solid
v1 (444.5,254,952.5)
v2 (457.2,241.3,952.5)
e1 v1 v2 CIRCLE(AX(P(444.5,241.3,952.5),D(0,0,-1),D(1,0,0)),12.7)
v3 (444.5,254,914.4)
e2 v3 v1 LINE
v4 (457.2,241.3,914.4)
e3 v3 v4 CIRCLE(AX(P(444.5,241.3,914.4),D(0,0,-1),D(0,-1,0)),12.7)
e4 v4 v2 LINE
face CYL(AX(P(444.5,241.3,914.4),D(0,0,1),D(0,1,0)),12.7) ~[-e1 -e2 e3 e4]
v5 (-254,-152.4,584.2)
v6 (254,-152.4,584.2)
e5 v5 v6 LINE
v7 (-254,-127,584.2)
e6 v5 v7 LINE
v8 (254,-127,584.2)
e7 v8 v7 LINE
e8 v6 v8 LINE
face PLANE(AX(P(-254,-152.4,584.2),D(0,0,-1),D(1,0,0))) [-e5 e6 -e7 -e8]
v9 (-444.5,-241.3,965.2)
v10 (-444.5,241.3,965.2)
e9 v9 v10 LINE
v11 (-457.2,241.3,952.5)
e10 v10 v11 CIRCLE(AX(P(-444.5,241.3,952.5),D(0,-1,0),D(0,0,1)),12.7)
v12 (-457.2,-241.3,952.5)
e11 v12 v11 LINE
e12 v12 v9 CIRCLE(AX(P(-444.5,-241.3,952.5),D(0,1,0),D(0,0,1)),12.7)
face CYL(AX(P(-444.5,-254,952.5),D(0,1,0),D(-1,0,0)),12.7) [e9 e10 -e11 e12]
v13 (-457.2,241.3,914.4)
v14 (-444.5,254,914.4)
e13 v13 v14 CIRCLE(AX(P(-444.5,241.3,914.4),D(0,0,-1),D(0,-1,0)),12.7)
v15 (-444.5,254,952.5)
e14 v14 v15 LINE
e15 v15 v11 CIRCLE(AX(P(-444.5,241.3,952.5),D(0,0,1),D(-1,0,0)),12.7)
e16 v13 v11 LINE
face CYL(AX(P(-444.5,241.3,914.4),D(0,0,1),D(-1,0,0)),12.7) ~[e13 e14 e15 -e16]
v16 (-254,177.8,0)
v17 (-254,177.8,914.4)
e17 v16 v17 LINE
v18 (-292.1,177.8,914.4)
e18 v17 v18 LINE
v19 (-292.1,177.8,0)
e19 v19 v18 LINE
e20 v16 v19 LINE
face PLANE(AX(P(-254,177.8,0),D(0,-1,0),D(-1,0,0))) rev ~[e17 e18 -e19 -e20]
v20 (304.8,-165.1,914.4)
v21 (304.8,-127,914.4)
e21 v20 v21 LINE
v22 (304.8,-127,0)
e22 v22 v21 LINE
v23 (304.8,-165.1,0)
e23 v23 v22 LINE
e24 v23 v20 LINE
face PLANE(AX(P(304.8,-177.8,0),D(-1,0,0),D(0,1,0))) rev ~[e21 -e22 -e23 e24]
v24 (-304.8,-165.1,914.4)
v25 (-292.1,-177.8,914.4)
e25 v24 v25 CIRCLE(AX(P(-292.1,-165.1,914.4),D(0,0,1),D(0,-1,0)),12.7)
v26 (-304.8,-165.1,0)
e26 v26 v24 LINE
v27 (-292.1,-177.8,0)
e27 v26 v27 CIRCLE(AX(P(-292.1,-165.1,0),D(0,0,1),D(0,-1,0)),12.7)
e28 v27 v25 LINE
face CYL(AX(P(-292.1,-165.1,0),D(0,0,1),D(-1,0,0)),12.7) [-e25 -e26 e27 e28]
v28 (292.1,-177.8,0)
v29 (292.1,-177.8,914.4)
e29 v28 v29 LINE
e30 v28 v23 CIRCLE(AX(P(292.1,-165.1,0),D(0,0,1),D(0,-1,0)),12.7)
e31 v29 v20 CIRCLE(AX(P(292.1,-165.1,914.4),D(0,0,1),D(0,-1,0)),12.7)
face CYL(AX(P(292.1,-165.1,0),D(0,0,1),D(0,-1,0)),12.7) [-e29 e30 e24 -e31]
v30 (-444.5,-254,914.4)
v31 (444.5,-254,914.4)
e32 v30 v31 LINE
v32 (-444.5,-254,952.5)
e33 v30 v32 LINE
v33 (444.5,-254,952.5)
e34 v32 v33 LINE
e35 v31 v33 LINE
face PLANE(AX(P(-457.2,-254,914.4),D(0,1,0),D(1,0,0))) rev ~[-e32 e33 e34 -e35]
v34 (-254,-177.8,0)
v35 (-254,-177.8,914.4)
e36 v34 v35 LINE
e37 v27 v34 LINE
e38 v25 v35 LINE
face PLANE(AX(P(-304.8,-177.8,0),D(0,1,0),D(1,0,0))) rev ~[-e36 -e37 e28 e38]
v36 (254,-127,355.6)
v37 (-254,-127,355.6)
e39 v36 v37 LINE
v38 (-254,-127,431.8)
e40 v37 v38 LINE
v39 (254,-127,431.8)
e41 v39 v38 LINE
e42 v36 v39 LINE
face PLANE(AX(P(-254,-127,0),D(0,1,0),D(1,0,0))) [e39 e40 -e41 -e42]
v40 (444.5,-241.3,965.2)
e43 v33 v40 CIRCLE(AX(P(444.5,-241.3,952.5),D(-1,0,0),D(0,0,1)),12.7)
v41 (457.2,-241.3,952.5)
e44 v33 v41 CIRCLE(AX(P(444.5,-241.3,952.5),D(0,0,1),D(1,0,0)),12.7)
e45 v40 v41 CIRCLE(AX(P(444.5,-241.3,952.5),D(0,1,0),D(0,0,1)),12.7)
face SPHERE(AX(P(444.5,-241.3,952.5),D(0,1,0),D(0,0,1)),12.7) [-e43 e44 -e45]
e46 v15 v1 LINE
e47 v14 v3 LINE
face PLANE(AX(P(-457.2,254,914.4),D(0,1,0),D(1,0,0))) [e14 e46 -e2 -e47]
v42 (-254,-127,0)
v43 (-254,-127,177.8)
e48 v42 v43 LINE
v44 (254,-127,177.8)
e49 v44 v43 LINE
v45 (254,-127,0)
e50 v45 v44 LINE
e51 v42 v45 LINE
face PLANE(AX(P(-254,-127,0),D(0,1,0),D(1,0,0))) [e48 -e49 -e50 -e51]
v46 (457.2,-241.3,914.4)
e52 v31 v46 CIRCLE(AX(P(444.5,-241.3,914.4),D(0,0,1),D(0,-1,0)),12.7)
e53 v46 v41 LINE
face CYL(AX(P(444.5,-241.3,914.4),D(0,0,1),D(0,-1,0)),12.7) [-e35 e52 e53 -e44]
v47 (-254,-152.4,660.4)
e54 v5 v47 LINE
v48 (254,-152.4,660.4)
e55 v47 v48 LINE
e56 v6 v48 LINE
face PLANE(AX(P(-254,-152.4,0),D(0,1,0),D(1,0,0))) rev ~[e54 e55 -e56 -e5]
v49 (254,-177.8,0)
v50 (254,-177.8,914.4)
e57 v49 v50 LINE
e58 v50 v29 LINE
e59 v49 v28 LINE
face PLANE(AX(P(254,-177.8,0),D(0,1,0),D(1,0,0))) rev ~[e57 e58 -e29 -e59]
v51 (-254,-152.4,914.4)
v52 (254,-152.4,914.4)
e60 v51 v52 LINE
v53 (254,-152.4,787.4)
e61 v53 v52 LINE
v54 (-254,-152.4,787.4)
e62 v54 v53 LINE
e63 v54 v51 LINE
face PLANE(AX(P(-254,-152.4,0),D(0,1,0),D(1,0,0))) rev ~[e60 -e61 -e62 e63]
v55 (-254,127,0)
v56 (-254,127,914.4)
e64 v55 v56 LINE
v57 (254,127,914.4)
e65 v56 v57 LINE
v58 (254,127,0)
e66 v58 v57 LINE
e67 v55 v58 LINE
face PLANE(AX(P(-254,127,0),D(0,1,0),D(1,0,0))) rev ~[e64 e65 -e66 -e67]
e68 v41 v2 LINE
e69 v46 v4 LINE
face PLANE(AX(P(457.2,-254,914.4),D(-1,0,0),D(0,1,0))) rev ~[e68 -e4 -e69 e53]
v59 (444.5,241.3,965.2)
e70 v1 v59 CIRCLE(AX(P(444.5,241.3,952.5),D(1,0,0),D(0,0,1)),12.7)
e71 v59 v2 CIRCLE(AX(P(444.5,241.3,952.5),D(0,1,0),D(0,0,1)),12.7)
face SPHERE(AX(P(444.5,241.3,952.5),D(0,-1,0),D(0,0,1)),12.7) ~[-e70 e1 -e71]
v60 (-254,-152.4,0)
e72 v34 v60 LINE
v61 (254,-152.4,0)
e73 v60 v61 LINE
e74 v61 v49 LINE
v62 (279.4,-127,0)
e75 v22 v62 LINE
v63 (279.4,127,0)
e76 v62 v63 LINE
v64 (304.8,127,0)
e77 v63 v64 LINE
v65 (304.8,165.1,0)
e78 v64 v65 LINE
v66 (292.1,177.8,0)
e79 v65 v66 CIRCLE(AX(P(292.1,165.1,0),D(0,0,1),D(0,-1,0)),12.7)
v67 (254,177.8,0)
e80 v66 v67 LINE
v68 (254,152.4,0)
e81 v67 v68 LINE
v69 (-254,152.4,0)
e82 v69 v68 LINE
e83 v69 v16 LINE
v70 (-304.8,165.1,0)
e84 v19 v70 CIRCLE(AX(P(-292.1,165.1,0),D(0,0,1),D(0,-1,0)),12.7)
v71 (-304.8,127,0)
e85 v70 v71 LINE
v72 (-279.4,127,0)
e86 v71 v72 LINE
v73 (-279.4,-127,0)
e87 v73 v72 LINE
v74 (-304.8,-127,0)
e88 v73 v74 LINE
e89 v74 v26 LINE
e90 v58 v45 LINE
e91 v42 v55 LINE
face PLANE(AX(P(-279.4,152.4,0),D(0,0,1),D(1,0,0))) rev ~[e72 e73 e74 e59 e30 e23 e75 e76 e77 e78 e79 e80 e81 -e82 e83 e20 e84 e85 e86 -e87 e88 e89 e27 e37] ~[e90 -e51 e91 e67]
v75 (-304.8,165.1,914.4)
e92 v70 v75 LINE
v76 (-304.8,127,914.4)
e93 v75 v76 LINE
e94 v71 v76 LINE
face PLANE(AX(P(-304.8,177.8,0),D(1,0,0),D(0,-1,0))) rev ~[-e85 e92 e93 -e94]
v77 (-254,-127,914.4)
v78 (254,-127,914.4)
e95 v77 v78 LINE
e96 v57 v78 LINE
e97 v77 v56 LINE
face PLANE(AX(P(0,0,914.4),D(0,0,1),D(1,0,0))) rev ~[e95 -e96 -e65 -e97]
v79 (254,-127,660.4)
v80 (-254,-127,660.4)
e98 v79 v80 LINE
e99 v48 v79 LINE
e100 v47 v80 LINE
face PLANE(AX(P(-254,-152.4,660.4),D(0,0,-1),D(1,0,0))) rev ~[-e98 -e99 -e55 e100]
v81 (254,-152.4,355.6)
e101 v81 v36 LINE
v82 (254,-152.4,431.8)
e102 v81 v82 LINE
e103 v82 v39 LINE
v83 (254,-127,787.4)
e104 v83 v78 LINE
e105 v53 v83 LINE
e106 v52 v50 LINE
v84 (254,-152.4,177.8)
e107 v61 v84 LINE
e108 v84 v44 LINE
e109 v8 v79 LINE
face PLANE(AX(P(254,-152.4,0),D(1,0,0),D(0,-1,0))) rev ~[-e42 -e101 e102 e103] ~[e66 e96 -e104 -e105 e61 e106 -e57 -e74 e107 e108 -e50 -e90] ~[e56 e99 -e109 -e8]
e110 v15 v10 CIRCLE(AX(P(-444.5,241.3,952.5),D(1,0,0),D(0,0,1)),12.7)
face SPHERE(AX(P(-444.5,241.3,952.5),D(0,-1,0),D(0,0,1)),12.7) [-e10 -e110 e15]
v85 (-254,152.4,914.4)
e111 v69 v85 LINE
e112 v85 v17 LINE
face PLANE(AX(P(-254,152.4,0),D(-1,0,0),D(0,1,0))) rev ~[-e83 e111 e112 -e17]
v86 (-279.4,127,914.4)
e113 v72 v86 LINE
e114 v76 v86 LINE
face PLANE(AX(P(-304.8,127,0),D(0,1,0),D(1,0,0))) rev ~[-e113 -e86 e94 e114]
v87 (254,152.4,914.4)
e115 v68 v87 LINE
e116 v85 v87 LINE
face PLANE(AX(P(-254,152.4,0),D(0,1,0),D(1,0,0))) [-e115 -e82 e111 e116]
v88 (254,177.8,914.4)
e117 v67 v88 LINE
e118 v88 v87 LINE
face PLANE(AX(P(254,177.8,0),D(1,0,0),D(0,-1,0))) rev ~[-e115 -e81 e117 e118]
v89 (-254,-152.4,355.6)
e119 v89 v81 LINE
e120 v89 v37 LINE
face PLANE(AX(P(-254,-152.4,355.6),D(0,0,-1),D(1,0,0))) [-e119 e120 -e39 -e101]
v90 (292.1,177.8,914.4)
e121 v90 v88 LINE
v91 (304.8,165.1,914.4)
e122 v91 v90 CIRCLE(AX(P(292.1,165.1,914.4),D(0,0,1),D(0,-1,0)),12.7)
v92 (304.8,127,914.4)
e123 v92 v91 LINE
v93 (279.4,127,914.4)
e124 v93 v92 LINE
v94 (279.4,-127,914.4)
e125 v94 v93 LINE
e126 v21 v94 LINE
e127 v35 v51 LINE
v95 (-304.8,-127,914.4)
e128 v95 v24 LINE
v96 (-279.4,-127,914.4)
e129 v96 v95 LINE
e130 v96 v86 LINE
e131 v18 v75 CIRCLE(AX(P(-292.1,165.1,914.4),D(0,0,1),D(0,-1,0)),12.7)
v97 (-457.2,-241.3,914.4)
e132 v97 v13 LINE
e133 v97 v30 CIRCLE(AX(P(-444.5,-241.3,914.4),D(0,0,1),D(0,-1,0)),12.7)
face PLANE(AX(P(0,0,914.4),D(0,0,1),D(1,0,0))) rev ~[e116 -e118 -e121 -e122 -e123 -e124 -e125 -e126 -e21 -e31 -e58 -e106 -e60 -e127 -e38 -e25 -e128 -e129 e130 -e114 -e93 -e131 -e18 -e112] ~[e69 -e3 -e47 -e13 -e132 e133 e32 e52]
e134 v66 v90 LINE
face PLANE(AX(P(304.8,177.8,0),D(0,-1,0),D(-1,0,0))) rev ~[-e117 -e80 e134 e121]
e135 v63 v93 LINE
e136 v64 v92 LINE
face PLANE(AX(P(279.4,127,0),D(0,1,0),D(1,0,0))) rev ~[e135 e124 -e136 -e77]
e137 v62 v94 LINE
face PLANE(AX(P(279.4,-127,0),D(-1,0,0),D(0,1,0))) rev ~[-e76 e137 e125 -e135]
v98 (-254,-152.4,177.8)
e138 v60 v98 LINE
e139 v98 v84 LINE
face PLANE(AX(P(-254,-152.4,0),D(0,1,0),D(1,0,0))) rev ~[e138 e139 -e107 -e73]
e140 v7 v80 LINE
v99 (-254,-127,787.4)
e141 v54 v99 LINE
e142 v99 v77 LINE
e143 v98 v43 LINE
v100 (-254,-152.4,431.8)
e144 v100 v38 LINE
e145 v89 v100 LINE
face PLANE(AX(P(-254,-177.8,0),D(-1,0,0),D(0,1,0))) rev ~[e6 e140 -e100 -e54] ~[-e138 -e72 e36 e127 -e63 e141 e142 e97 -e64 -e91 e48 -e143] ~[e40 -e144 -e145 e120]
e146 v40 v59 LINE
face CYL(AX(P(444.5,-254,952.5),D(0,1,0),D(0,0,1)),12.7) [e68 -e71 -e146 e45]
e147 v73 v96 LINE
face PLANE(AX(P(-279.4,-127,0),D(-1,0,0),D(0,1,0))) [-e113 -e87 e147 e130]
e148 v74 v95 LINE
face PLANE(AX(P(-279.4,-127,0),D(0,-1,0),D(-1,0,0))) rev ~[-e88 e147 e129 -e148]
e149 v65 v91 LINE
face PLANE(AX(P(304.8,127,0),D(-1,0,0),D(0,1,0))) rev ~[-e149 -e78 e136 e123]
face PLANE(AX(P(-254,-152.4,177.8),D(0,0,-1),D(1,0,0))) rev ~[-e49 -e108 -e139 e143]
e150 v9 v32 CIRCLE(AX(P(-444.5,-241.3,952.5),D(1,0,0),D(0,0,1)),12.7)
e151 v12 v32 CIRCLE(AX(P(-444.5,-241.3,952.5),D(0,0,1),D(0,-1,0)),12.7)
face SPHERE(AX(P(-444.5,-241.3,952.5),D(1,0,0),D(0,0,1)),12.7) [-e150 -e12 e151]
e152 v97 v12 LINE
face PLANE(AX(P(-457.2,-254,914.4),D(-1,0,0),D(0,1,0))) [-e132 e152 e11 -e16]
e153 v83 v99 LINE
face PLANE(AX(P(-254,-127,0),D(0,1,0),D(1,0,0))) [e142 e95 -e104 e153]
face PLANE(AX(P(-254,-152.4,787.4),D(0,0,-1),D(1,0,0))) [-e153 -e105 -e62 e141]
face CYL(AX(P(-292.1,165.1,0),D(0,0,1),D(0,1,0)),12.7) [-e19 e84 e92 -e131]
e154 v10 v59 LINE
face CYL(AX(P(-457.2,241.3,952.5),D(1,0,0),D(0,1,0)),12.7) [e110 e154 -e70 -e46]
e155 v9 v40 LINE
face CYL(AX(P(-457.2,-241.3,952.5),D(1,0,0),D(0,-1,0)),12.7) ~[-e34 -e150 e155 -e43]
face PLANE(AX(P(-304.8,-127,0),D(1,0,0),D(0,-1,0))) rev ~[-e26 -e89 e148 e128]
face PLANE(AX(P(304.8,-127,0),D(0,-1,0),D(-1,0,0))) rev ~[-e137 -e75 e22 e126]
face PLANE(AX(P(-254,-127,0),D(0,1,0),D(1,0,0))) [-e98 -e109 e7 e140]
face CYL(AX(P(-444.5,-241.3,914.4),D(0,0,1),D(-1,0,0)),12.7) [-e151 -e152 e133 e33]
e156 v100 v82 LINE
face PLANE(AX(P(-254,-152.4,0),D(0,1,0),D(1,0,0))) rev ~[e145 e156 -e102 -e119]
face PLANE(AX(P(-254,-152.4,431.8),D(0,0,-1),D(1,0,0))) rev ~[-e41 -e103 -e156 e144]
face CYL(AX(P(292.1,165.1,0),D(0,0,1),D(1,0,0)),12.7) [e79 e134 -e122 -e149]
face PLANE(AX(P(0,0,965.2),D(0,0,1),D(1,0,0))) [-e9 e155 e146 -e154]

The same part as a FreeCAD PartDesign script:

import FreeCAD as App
import Part
import Sketcher
from FreeCAD import Vector
Q = App.Units.Quantity


def edges_at(feature, points):
    """Names of the edges that pass closest to the given points."""
    edges = feature.Shape.Edges
    near = lambda p: min(range(len(edges)), key=lambda i: edges[i].distToShape(Part.Vertex(*p))[0])
    return sorted({f"Edge{near(p) + 1}" for p in points})


def add_polygon(sketch, points):
    """Adds a closed chain of lines whose ends are joined by coincident constraints."""
    first, n = sketch.GeometryCount, len(points)
    for a, b in zip(points, points[1:] + points[:1]):
        sketch.addGeometry(Part.LineSegment(App.Vector(*a, 0), App.Vector(*b, 0)), False)
    for i in range(n):
        sketch.addConstraint(Sketcher.Constraint("Coincident", first + i, 2, first + (i + 1) % n, 1))

doc = App.newDocument("Part")
params = doc.addObject("Spreadsheet::Sheet", "Params")
for row, (alias, value) in enumerate([
    ("sketch1_width", "2 in"),
    ("sketch1_width2", "1 in"),
    ("sketch1_width3", "20 in"),
    ("sketch1_height", "10 in"),
    ("pad1_length", "36 in"),
    ("sketch2_width", "36 in"),
    ("sketch2_height", "20 in"),
    ("pad2_length", "2 in"),
    ("sketch3_width", "20 in"),
    ("sketch3_height", "5 in"),
    ("sketch3_height2", "6 in"),
    ("sketch3_height3", "7 in"),
    ("pocket1_length", "5 in"),
    ("fillet_radius", "0.5 in"),
], start=1):
    params.set(f"A{row}", alias)
    params.set(f"B{row}", "=" + value)
    params.setAlias(f"B{row}", alias)

body = doc.addObject("PartDesign::Body", "Body")

# Sketch on XY plane
sketch1 = body.newObject("Sketcher::SketchObject", "Sketch")
sketch1.AttachmentSupport = (doc.getObject("XY_Plane"), [""])
sketch1.MapMode = "FlatFace"
add_polygon(sketch1, [(-254, 177.8), (-304.8, 177.8), (-304.8, 127), (-279.4, 127), (-279.4, -127), (-304.8, -127), (-304.8, -177.8), (-254, -177.8), (-254, -152.4), (254, -152.4), (254, -177.8), (304.8, -177.8), (304.8, -127), (279.4, -127), (279.4, 127), (304.8, 127), (304.8, 177.8), (254, 177.8), (254, 152.4), (-254, 152.4)])  # lines 0-19
add_polygon(sketch1, [(-254, -127), (-254, 127), (254, 127), (254, -127)])  # lines 20-23
sketch1.addConstraint(Sketcher.Constraint("Horizontal", 0))
sketch1.addConstraint(Sketcher.Constraint("Vertical", 1))
sketch1.addConstraint(Sketcher.Constraint("Horizontal", 2))
sketch1.addConstraint(Sketcher.Constraint("Vertical", 3))
sketch1.addConstraint(Sketcher.Constraint("Horizontal", 4))
sketch1.addConstraint(Sketcher.Constraint("Vertical", 5))
sketch1.addConstraint(Sketcher.Constraint("Horizontal", 6))
sketch1.addConstraint(Sketcher.Constraint("Vertical", 7))
sketch1.addConstraint(Sketcher.Constraint("Horizontal", 8))
sketch1.addConstraint(Sketcher.Constraint("Vertical", 9))
sketch1.addConstraint(Sketcher.Constraint("Horizontal", 10))
sketch1.addConstraint(Sketcher.Constraint("Vertical", 11))
sketch1.addConstraint(Sketcher.Constraint("Horizontal", 12))
sketch1.addConstraint(Sketcher.Constraint("Vertical", 13))
sketch1.addConstraint(Sketcher.Constraint("Horizontal", 14))
sketch1.addConstraint(Sketcher.Constraint("Vertical", 15))
sketch1.addConstraint(Sketcher.Constraint("Horizontal", 16))
sketch1.addConstraint(Sketcher.Constraint("Vertical", 17))
sketch1.addConstraint(Sketcher.Constraint("Horizontal", 18))
sketch1.addConstraint(Sketcher.Constraint("Vertical", 19))
sketch1.addConstraint(Sketcher.Constraint("Vertical", 20))
sketch1.addConstraint(Sketcher.Constraint("Horizontal", 21))
sketch1.addConstraint(Sketcher.Constraint("Vertical", 22))
sketch1.addConstraint(Sketcher.Constraint("Horizontal", 23))
sketch1.addConstraint(Sketcher.Constraint("Symmetric", 0, 2, 10, 2, -1, 1))
sketch1.addConstraint(Sketcher.Constraint("Symmetric", 2, 2, 12, 2, -1, 1))
sketch1.addConstraint(Sketcher.Constraint("Symmetric", 4, 2, 14, 2, -1, 1))
sketch1.addConstraint(Sketcher.Constraint("Symmetric", 6, 2, 16, 2, -1, 1))
sketch1.addConstraint(Sketcher.Constraint("Symmetric", 8, 2, 18, 2, -1, 1))
sketch1.addConstraint(Sketcher.Constraint("Symmetric", 20, 2, 22, 2, -1, 1))
sketch1.addConstraint(Sketcher.Constraint("Symmetric", 6, 2, 9, 2, -2))
sketch1.addConstraint(Sketcher.Constraint("Symmetric", 4, 2, 11, 2, -2))
sketch1.addConstraint(Sketcher.Constraint("Horizontal", 14, 2, 20, 2))
sketch1.addConstraint(Sketcher.Constraint("Vertical", 19, 2, 20, 2))
sketch1.addConstraint(Sketcher.Constraint("Equal", 16, 1))
sketch1.addConstraint(Sketcher.Constraint("Equal", 14, 7))
sketch1.addConstraint(Sketcher.Constraint("DistanceX", 0, 2, 0, 1, Q("2 in")))
sketch1.addConstraint(Sketcher.Constraint("DistanceX", 2, 1, 2, 2, Q("1 in")))
sketch1.addConstraint(Sketcher.Constraint("DistanceX", 8, 1, 8, 2, Q("20 in")))
sketch1.addConstraint(Sketcher.Constraint("DistanceY", 3, 2, 3, 1, Q("10 in")))
sketch1.setExpression("Constraints[60]", "Params.sketch1_width")
sketch1.setExpression("Constraints[61]", "Params.sketch1_width2")
sketch1.setExpression("Constraints[62]", "Params.sketch1_width3")
sketch1.setExpression("Constraints[63]", "Params.sketch1_height")
pad1 = body.newObject("PartDesign::Pad", "Pad")
pad1.Profile = sketch1
pad1.setExpression("Length", "Params.pad1_length")

# Sketch on XY plane
sketch2 = body.newObject("Sketcher::SketchObject", "Sketch001")
sketch2.AttachmentSupport = (doc.getObject("XY_Plane"), [""])
sketch2.MapMode = "FlatFace"
sketch2.AttachmentOffset = App.Placement(Vector(0, 0, 36 * 25.4), App.Rotation())
add_polygon(sketch2, [(-457.2, 254), (-457.2, -254), (457.2, -254), (457.2, 254)])  # lines 0-3
sketch2.addConstraint(Sketcher.Constraint("Vertical", 0))
sketch2.addConstraint(Sketcher.Constraint("Horizontal", 1))
sketch2.addConstraint(Sketcher.Constraint("Vertical", 2))
sketch2.addConstraint(Sketcher.Constraint("Horizontal", 3))
sketch2.addConstraint(Sketcher.Constraint("Symmetric", 0, 2, 2, 2, -1, 1))
sketch2.addConstraint(Sketcher.Constraint("DistanceX", 1, 1, 1, 2, Q("36 in")))
sketch2.addConstraint(Sketcher.Constraint("DistanceY", 0, 2, 0, 1, Q("20 in")))
sketch2.setExpression("Constraints[9]", "Params.sketch2_width")
sketch2.setExpression("Constraints[10]", "Params.sketch2_height")
pad2 = body.newObject("PartDesign::Pad", "Pad001")
pad2.Profile = sketch2
pad2.setExpression("Length", "Params.pad2_length")

# Sketch on XZ plane
sketch3 = body.newObject("Sketcher::SketchObject", "Sketch002")
sketch3.AttachmentSupport = (doc.getObject("XZ_Plane"), [""])
sketch3.MapMode = "FlatFace"
sketch3.AttachmentOffset = App.Placement(Vector(0, 0, 6 * 25.4), App.Rotation())
add_polygon(sketch3, [(-254, 787.4), (-254, 660.4), (254, 660.4), (254, 787.4)])  # lines 0-3
add_polygon(sketch3, [(-254, 584.2), (-254, 431.8), (254, 431.8), (254, 584.2)])  # lines 4-7
add_polygon(sketch3, [(-254, 355.6), (-254, 177.8), (254, 177.8), (254, 355.6)])  # lines 8-11
sketch3.addConstraint(Sketcher.Constraint("Vertical", 0))
sketch3.addConstraint(Sketcher.Constraint("Horizontal", 1))
sketch3.addConstraint(Sketcher.Constraint("Vertical", 2))
sketch3.addConstraint(Sketcher.Constraint("Horizontal", 3))
sketch3.addConstraint(Sketcher.Constraint("Vertical", 4))
sketch3.addConstraint(Sketcher.Constraint("Horizontal", 5))
sketch3.addConstraint(Sketcher.Constraint("Vertical", 6))
sketch3.addConstraint(Sketcher.Constraint("Horizontal", 7))
sketch3.addConstraint(Sketcher.Constraint("Vertical", 8))
sketch3.addConstraint(Sketcher.Constraint("Horizontal", 9))
sketch3.addConstraint(Sketcher.Constraint("Vertical", 10))
sketch3.addConstraint(Sketcher.Constraint("Horizontal", 11))
sketch3.addConstraint(Sketcher.Constraint("Vertical", 3, 2, 4, 2))
sketch3.addConstraint(Sketcher.Constraint("Vertical", 2, 2, 5, 2))
sketch3.addConstraint(Sketcher.Constraint("Vertical", 7, 2, 8, 2))
sketch3.addConstraint(Sketcher.Constraint("Vertical", 6, 2, 9, 2))
sketch3.addConstraint(Sketcher.Constraint("DistanceX", 1, 1, 1, 2, Q("20 in")))
sketch3.addConstraint(Sketcher.Constraint("DistanceY", 0, 2, 0, 1, Q("5 in")))
sketch3.addConstraint(Sketcher.Constraint("DistanceY", 4, 2, 4, 1, Q("6 in")))
sketch3.addConstraint(Sketcher.Constraint("DistanceY", 8, 2, 8, 1, Q("7 in")))
sketch3.addConstraint(Sketcher.Constraint("DistanceX", 0, 2, -1, 1, Q("10 in")))
sketch3.addConstraint(Sketcher.Constraint("DistanceY", -1, 1, 0, 2, Q("26 in")))
sketch3.addConstraint(Sketcher.Constraint("DistanceY", -1, 1, 4, 2, Q("17 in")))
sketch3.addConstraint(Sketcher.Constraint("DistanceY", -1, 1, 8, 2, Q("7 in")))
sketch3.setExpression("Constraints[28]", "Params.sketch3_width")
sketch3.setExpression("Constraints[29]", "Params.sketch3_height")
sketch3.setExpression("Constraints[30]", "Params.sketch3_height2")
sketch3.setExpression("Constraints[31]", "Params.sketch3_height3")
pocket1 = body.newObject("PartDesign::Pocket", "Pocket")
pocket1.Profile = sketch3
pocket1.setExpression("Length", "Params.pocket1_length")
doc.recompute()

fillet = body.newObject("PartDesign::Fillet", "Fillet")
fillet.Base = (pocket1, edges_at(pocket1, [
    (457.2, 0, 965.2),
    (0, -254, 965.2),
    (-457.2, 0, 965.2),
    (0, 254, 965.2),
    (457.2, -254, 939.8),
    (-457.2, -254, 939.8),
    (457.2, 254, 939.8),
    (-457.2, 254, 939.8),
    (304.8, -177.8, 457.2),
    (-304.8, -177.8, 457.2),
    (304.8, 177.8, 457.2),
    (-304.8, 177.8, 457.2),
]))
fillet.setExpression("Radius", "Params.fillet_radius")

doc.recompute()
